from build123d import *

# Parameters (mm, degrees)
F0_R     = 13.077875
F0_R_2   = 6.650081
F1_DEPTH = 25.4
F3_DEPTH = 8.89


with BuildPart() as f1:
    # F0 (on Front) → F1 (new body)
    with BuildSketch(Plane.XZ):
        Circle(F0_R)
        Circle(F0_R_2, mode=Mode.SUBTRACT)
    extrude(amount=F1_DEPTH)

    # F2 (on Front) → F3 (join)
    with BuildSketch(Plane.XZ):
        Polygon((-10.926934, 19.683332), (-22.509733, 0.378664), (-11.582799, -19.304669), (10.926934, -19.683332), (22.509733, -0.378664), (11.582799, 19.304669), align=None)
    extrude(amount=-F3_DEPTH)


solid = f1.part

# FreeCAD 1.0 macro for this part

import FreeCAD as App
import Part
import Sketcher
from FreeCAD import Vector
Q = App.Units.Quantity

doc = App.newDocument("Part")
body = doc.addObject("PartDesign::Body", "Body")

sketch1 = doc.addObject("Sketcher::SketchObject", "Sketch")
body.addObject(sketch1)
sketch1.AttachmentSupport = (doc.XZ_Plane, [""])
sketch1.MapMode = "FlatFace"
sketch1.addGeometry([
    Part.Circle(Vector(0, 0, 0), Vector(0, 0, 1), 13.077875),
    Part.Circle(Vector(0, 0, 0), Vector(0, 0, 1), 6.650081),
], False)
sketch1.addConstraint([
    Sketcher.Constraint("Coincident", 0, 3, -1, 1),
    Sketcher.Constraint("Coincident", 1, 3, -1, 1),
    Sketcher.Constraint("Diameter", 0, 26.15575),
    Sketcher.Constraint("Diameter", 1, 13.300162),
])
pad1 = doc.addObject("PartDesign::Pad", "Pad")
body.addObject(pad1)
pad1.Profile = sketch1
pad1.Length = Q("1 in")

sketch2 = doc.addObject("Sketcher::SketchObject", "Sketch001")
body.addObject(sketch2)
sketch2.AttachmentSupport = (doc.XZ_Plane, [""])
sketch2.MapMode = "FlatFace"
sketch2.addGeometry([
    Part.LineSegment(Vector(-10.926934, 19.683332, 0), Vector(-22.509733, 0.378664, 0)),
    Part.LineSegment(Vector(-22.509733, 0.378664, 0), Vector(-11.582799, -19.304669, 0)),
    Part.LineSegment(Vector(-11.582799, -19.304669, 0), Vector(10.926934, -19.683332, 0)),
    Part.LineSegment(Vector(10.926934, -19.683332, 0), Vector(22.509733, -0.378664, 0)),
    Part.LineSegment(Vector(22.509733, -0.378664, 0), Vector(11.582799, 19.304669, 0)),
    Part.LineSegment(Vector(11.582799, 19.304669, 0), Vector(-10.926934, 19.683332, 0)),
], False)
sketch2.addConstraint([
    Sketcher.Constraint("Coincident", 0, 2, 1, 1),
    Sketcher.Constraint("Coincident", 1, 2, 2, 1),
    Sketcher.Constraint("Coincident", 2, 2, 3, 1),
    Sketcher.Constraint("Coincident", 3, 2, 4, 1),
    Sketcher.Constraint("Coincident", 4, 2, 5, 1),
    Sketcher.Constraint("Coincident", 5, 2, 0, 1),
    Sketcher.Constraint("DistanceX", 1, 2, -1, 1, 11.582799),
    Sketcher.Constraint("DistanceX", -1, 1, 4, 2, 11.582799),
    Sketcher.Constraint("DistanceX", 2, 2, 3, 2, 11.582799),
    Sketcher.Constraint("DistanceY", 2, 2, 4, 2, 38.988001),
    Sketcher.Constraint("DistanceX", 0, 2, 5, 2, 11.582799),
    Sketcher.Constraint("DistanceY", 1, 2, 5, 2, 38.988001),
    Sketcher.Constraint("Distance", 1, 22.512918),
    Sketcher.Constraint("Distance", 4, 22.512918),
    Sketcher.Constraint("DistanceY", 1, 2, -1, 1, 19.304669),
    Sketcher.Constraint("DistanceY", 2, 2, -1, 1, 19.683332),
    Sketcher.Constraint("DistanceY", 3, 2, 0, 2, 0.757328),
    Sketcher.Constraint("Distance", 0, 22.512917),
])
pad2 = doc.addObject("PartDesign::Pad", "Pad001")
body.addObject(pad2)
pad2.Profile = sketch2
pad2.Length = Q("0.35 in")
pad2.Reversed = True

doc.recompute()
